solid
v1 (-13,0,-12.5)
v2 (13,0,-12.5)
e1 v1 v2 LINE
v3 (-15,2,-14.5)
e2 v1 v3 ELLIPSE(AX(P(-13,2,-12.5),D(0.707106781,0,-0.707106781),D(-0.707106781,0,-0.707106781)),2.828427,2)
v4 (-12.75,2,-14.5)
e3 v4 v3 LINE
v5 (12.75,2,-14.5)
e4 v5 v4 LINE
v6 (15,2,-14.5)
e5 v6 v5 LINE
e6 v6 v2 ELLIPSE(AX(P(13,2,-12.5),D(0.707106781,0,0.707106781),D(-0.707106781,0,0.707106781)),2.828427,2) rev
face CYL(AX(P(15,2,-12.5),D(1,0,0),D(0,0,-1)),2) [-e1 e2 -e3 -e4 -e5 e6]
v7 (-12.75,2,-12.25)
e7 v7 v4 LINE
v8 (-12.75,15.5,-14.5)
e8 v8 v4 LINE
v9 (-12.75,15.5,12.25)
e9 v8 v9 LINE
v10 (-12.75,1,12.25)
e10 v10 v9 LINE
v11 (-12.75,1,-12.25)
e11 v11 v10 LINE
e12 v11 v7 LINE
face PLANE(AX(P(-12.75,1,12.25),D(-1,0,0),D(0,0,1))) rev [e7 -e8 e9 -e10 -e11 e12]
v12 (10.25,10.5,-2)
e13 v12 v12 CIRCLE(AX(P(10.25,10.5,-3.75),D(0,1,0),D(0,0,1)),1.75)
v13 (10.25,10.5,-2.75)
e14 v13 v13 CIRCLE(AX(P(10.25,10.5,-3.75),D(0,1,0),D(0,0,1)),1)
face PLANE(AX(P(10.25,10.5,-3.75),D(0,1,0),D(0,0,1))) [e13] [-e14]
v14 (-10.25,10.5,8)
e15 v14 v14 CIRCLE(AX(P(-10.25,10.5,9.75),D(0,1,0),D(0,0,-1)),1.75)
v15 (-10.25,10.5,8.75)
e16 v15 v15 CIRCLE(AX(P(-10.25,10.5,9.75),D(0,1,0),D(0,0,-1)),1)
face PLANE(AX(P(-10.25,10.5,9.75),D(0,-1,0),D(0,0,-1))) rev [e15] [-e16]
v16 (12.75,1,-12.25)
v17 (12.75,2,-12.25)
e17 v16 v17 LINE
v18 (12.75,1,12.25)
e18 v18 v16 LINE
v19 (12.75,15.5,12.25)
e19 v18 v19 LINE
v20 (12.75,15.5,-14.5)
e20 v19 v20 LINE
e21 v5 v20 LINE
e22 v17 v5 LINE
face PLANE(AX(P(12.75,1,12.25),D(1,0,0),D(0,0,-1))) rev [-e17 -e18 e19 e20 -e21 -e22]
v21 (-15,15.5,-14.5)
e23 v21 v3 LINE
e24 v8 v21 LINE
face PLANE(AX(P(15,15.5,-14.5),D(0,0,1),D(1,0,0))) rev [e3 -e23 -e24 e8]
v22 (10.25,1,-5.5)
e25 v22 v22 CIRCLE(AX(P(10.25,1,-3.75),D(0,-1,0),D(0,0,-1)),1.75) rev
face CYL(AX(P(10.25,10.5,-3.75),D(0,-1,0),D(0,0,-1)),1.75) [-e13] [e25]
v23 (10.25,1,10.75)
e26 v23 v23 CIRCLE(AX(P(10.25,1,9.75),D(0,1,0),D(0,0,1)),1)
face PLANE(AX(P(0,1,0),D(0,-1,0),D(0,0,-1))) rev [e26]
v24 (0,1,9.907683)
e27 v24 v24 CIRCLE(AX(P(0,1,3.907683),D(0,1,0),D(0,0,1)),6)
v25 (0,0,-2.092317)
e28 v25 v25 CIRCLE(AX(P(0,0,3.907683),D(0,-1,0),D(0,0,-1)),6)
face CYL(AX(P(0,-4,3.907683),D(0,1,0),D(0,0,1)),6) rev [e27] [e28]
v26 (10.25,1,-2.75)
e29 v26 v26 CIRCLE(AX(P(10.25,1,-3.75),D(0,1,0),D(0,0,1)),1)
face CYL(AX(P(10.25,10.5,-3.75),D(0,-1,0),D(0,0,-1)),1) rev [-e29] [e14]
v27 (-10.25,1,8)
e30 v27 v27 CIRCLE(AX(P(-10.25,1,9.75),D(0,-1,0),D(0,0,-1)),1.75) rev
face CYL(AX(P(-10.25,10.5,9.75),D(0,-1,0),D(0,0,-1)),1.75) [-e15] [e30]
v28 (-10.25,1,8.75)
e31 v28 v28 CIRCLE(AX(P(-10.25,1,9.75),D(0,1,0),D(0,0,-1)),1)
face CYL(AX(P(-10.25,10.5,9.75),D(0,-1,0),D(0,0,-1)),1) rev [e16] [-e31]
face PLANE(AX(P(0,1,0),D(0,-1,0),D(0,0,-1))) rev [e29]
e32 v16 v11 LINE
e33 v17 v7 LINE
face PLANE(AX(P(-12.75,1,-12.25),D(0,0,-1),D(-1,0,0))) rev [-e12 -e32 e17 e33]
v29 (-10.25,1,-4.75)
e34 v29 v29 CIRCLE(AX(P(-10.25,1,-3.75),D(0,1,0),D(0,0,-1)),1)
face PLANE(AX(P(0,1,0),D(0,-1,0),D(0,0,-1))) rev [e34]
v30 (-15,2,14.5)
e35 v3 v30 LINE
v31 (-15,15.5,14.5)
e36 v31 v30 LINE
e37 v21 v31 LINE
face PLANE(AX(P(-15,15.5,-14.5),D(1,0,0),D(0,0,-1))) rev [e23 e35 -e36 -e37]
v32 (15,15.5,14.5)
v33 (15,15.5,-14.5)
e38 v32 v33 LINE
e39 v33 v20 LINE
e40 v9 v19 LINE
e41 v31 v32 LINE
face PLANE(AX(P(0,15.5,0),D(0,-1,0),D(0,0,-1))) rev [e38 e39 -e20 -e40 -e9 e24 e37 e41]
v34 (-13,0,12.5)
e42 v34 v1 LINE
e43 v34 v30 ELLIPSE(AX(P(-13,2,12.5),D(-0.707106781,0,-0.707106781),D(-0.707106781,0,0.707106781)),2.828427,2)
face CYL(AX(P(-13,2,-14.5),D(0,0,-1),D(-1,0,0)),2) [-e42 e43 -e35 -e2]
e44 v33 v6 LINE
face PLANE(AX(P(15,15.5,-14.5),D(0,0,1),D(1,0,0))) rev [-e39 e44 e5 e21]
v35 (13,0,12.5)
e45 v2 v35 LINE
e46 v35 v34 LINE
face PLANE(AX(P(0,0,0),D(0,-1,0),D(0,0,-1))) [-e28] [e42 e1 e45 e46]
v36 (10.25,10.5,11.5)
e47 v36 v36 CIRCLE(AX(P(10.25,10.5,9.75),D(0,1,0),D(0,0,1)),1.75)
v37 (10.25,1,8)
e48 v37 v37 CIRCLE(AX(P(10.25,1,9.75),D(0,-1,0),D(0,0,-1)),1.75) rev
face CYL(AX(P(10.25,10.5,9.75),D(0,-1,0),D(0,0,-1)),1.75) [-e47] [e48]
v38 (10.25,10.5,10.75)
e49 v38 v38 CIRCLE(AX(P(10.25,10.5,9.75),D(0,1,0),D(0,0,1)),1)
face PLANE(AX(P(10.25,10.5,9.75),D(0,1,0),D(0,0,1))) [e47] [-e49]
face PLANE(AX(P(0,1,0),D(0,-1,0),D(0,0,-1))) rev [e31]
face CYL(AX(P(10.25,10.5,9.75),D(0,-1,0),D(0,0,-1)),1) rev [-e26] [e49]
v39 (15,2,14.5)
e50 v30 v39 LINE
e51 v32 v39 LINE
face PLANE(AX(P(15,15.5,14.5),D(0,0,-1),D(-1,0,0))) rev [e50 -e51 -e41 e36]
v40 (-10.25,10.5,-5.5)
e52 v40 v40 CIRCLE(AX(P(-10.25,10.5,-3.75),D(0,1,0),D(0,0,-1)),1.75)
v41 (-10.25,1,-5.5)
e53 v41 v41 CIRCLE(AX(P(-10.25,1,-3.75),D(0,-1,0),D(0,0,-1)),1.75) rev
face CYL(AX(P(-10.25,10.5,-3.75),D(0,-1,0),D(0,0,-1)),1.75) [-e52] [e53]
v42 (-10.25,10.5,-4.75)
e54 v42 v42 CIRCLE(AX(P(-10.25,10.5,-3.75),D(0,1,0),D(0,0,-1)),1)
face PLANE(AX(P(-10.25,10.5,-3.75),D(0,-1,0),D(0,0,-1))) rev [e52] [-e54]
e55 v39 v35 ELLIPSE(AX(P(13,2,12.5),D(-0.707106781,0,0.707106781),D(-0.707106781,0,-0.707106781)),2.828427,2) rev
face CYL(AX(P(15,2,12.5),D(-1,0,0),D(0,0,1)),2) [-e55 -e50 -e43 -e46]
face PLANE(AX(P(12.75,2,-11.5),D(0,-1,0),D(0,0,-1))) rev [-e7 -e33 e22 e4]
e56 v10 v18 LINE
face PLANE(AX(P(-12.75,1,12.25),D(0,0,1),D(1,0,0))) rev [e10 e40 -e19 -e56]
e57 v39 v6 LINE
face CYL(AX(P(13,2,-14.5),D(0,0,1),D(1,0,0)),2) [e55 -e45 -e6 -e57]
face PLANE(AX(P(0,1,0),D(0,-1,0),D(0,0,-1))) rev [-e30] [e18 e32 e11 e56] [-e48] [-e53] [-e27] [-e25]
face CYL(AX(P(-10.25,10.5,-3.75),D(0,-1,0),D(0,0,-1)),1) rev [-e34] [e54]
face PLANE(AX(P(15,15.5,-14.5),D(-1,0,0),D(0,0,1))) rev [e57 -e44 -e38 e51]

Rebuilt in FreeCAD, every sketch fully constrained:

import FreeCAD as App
import Part
import Sketcher
Q = App.Units.Quantity


def edges_at(feature, points):
    """Names of the edges that pass closest to the given points."""
    edges = feature.Shape.Edges
    near = lambda p: min(range(len(edges)), key=lambda i: edges[i].distToShape(Part.Vertex(*p))[0])
    return sorted({f"Edge{near(p) + 1}" for p in points})

doc = App.newDocument("Part")
body = doc.addObject("PartDesign::Body", "Body")

sketch1 = body.newObject("Sketcher::SketchObject", "Sketch")
sketch1.AttachmentSupport = (doc.getObject("XZ_Plane"), [""])
sketch1.MapMode = "FlatFace"
sketch1.addGeometry([
    Part.LineSegment(App.Vector(-15, -14, 0), App.Vector(-15, 14, 0)),
    Part.LineSegment(App.Vector(-15, 14, 0), App.Vector(15, 14, 0)),
    Part.LineSegment(App.Vector(15, 14, 0), App.Vector(15, -14, 0)),
    Part.LineSegment(App.Vector(15, -14, 0), App.Vector(-15, -14, 0)),
], False)
sketch1.addConstraint([
    Sketcher.Constraint("Coincident", 0, 2, 1, 1),
    Sketcher.Constraint("Coincident", 1, 2, 2, 1),
    Sketcher.Constraint("Coincident", 2, 2, 3, 1),
    Sketcher.Constraint("Coincident", 3, 2, 0, 1),
    Sketcher.Constraint("Vertical", 0),
    Sketcher.Constraint("Horizontal", 1),
    Sketcher.Constraint("Vertical", 2),
    Sketcher.Constraint("Horizontal", 3),
    Sketcher.Constraint("Symmetric", 0, 2, 2, 2, -1, 1),
    Sketcher.Constraint("DistanceX", 1, 1, 1, 2, Q("30 mm")),
    Sketcher.Constraint("DistanceY", 0, 1, 0, 2, Q("29 mm")),
])
pad1 = body.newObject("PartDesign::Pad", "Pad")
pad1.Profile = sketch1
pad1.Length = 15.5
pad1.Reversed = True

sketch2 = body.newObject("Sketcher::SketchObject", "Sketch001")
sketch2.AttachmentSupport = (doc.getObject("XZ_Plane"), [""])
sketch2.MapMode = "FlatFace"
sketch2.AttachmentOffset = App.Placement(App.Vector(0, 0, -15.5), App.Rotation())
sketch2.addGeometry([
    Part.LineSegment(App.Vector(-13, -12, 0), App.Vector(-13, 12, 0)),
    Part.LineSegment(App.Vector(-13, 12, 0), App.Vector(13, 12, 0)),
    Part.LineSegment(App.Vector(13, 12, 0), App.Vector(13, -12, 0)),
    Part.LineSegment(App.Vector(13, -12, 0), App.Vector(-13, -12, 0)),
], False)
sketch2.addConstraint([
    Sketcher.Constraint("Coincident", 0, 2, 1, 1),
    Sketcher.Constraint("Coincident", 1, 2, 2, 1),
    Sketcher.Constraint("Coincident", 2, 2, 3, 1),
    Sketcher.Constraint("Coincident", 3, 2, 0, 1),
    Sketcher.Constraint("Vertical", 0),
    Sketcher.Constraint("Horizontal", 1),
    Sketcher.Constraint("Vertical", 2),
    Sketcher.Constraint("Horizontal", 3),
    Sketcher.Constraint("Symmetric", 0, 2, 2, 2, -1, 1),
    Sketcher.Constraint("DistanceX", 1, 1, 1, 2, Q("25.5 mm")),
    Sketcher.Constraint("DistanceY", 0, 1, 0, 2, Q("24.5 mm")),
])
pocket1 = body.newObject("PartDesign::Pocket", "Pocket")
pocket1.Profile = sketch2
pocket1.Length = 14.5
pocket1.Reversed = True
doc.recompute()

fillet = body.newObject("PartDesign::Fillet", "Fillet")
fillet.Base = (pocket1, edges_at(pocket1, [
    (0, 0, -14.5),
    (15, 0, 0),
    (0, 0, 14.5),
    (-15, 0, 0),
]))
fillet.Radius = 2

sketch3 = body.newObject("Sketcher::SketchObject", "Sketch002")
sketch3.AttachmentSupport = (doc.getObject("XZ_Plane"), [""])
sketch3.MapMode = "FlatFace"
sketch3.AttachmentOffset = App.Placement(App.Vector(0, 0, -1), App.Rotation())
sketch3.addGeometry(Part.Circle(App.Vector(0, 4, 0), App.Vector(0, 0, 1), 6), False)
sketch3.addConstraint([
    Sketcher.Constraint("PointOnObject", 0, 3, -2),
    Sketcher.Constraint("Diameter", 0, Q("12 mm")),
    Sketcher.Constraint("DistanceY", -1, 1, 0, 3, Q("3.907683 mm")),
])
pocket2 = body.newObject("PartDesign::Pocket", "Pocket001")
pocket2.Profile = sketch3
pocket2.Length = 5
pocket2.Reversed = True

sketch4 = body.newObject("Sketcher::SketchObject", "Sketch003")
sketch4.AttachmentSupport = (doc.getObject("XY_Plane"), [""])
sketch4.MapMode = "FlatFace"
sketch4.AttachmentOffset = App.Placement(App.Vector(0, 0, -14.5), App.Rotation())
sketch4.addGeometry([
    Part.LineSegment(App.Vector(13, 16, 0), App.Vector(13, 2, 0)),
    Part.LineSegment(App.Vector(13, 2, 0), App.Vector(-13, 2, 0)),
    Part.LineSegment(App.Vector(-13, 2, 0), App.Vector(-13, 16, 0)),
    Part.LineSegment(App.Vector(-13, 16, 0), App.Vector(13, 16, 0)),
], False)
sketch4.addConstraint([
    Sketcher.Constraint("Coincident", 0, 2, 1, 1),
    Sketcher.Constraint("Coincident", 1, 2, 2, 1),
    Sketcher.Constraint("Coincident", 2, 2, 3, 1),
    Sketcher.Constraint("Coincident", 3, 2, 0, 1),
    Sketcher.Constraint("Vertical", 0),
    Sketcher.Constraint("Horizontal", 1),
    Sketcher.Constraint("Vertical", 2),
    Sketcher.Constraint("Horizontal", 3),
    Sketcher.Constraint("DistanceX", 1, 2, 1, 1, Q("25.5 mm")),
    Sketcher.Constraint("DistanceY", 0, 2, 0, 1, Q("13.5 mm")),
    Sketcher.Constraint("DistanceY", -1, 1, 0, 2, Q("2 mm")),
    Sketcher.Constraint("DistanceX", -1, 1, 0, 2, Q("12.75 mm")),
])
pocket3 = body.newObject("PartDesign::Pocket", "Pocket002")
pocket3.Profile = sketch4
pocket3.Type = "TwoLengths"
pocket3.Length = 0.75
pocket3.Length2 = 3

sketch5 = body.newObject("Sketcher::SketchObject", "Sketch004")
sketch5.AttachmentSupport = (doc.getObject("XZ_Plane"), [""])
sketch5.MapMode = "FlatFace"
sketch5.AttachmentOffset = App.Placement(App.Vector(0, 0, -1), App.Rotation())
sketch5.addGeometry([
    Part.Circle(App.Vector(10.2, 9.8, 0), App.Vector(0, 0, 1), 1.8),
    Part.Circle(App.Vector(10.2, 9.8, 0), App.Vector(0, 0, 1), 1),
    Part.Circle(App.Vector(10.2, -3.8, 0), App.Vector(0, 0, 1), 1.8),
    Part.Circle(App.Vector(10.2, -3.8, 0), App.Vector(0, 0, 1), 1),
    Part.Circle(App.Vector(-10.2, -3.8, 0), App.Vector(0, 0, 1), 1.8),
    Part.Circle(App.Vector(-10.2, -3.8, 0), App.Vector(0, 0, 1), 1),
    Part.Circle(App.Vector(-10.2, 9.8, 0), App.Vector(0, 0, 1), 1.8),
    Part.Circle(App.Vector(-10.2, 9.8, 0), App.Vector(0, 0, 1), 1),
], False)
sketch5.addConstraint([
    Sketcher.Constraint("Coincident", 1, 3, 0, 3),
    Sketcher.Constraint("Coincident", 3, 3, 2, 3),
    Sketcher.Constraint("Coincident", 5, 3, 4, 3),
    Sketcher.Constraint("Coincident", 7, 3, 6, 3),
    Sketcher.Constraint("Equal", 0, 2),
    Sketcher.Constraint("Equal", 1, 3),
    Sketcher.Constraint("Equal", 2, 4),
    Sketcher.Constraint("Equal", 3, 5),
    Sketcher.Constraint("Equal", 4, 6),
    Sketcher.Constraint("Equal", 5, 7),
    Sketcher.Constraint("Symmetric", 2, 3, 4, 3, -2),
    Sketcher.Constraint("Symmetric", 0, 3, 6, 3, -2),
    Sketcher.Constraint("Vertical", 1, 3, 2, 3),
    Sketcher.Constraint("Diameter", 1, Q("2 mm")),
    Sketcher.Constraint("Diameter", 0, Q("3.5 mm")),
    Sketcher.Constraint("DistanceY", 2, 3, 0, 3, Q("13.5 mm")),
    Sketcher.Constraint("DistanceX", 4, 3, 2, 3, Q("20.5 mm")),
    Sketcher.Constraint("DistanceY", -1, 1, 0, 3, Q("9.75 mm")),
])
pad2 = body.newObject("PartDesign::Pad", "Pad001")
pad2.Profile = sketch5
pad2.Length = 9.5
pad2.Reversed = True

doc.recompute()
